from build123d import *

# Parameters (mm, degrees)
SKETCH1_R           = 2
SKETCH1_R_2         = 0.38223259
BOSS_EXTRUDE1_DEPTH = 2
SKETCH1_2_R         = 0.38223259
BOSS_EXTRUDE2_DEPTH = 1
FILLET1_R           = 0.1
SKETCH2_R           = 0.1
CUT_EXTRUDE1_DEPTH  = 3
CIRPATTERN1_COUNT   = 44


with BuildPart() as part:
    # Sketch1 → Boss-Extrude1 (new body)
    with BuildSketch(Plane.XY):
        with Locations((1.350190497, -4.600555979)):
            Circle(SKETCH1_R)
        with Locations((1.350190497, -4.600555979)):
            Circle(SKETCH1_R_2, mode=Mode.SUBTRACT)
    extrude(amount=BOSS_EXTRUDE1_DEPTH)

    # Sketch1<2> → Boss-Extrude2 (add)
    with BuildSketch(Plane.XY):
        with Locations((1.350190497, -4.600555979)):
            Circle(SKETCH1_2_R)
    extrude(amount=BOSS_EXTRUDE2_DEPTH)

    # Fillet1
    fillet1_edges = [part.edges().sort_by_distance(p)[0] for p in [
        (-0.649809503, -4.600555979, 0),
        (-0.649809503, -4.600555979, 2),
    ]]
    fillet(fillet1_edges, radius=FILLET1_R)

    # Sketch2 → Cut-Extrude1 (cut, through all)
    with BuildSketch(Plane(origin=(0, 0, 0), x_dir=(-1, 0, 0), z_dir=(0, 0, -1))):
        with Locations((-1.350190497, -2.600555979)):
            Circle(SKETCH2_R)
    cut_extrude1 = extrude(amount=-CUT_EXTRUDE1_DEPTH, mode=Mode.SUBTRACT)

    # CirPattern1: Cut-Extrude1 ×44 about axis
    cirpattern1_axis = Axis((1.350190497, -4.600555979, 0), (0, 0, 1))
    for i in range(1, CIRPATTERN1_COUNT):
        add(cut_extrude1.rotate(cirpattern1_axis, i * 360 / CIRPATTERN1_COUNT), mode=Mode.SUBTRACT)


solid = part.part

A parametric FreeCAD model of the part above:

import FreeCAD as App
import Part
import Sketcher
from FreeCAD import Vector
Q = App.Units.Quantity


def edges_at(feature, points):
    """Names of the edges that pass closest to the given points."""
    edges = feature.Shape.Edges
    near = lambda p: min(range(len(edges)), key=lambda i: edges[i].distToShape(Part.Vertex(*p))[0])
    return sorted({f"Edge{near(p) + 1}" for p in points})

doc = App.newDocument("Part")
body = doc.addObject("PartDesign::Body", "Body")

sketch1 = body.newObject("Sketcher::SketchObject", "Sketch")
sketch1.AttachmentSupport = (doc.getObject("XY_Plane"), [""])
sketch1.MapMode = "FlatFace"
sketch1.addGeometry([
    Part.Circle(Vector(1.35019, -4.600556, 0), Vector(0, 0, 1), 2),
    Part.Circle(Vector(1.35019, -4.600556, 0), Vector(0, 0, 1), 0.382233),
], False)
sketch1.addConstraint([
    Sketcher.Constraint("Coincident", 1, 3, 0, 3),
    Sketcher.Constraint("Diameter", 0, Q("4 mm")),
    Sketcher.Constraint("Diameter", 1, Q("0.764465 mm")),
    Sketcher.Constraint("DistanceX", -1, 1, 0, 3, Q("1.35019 mm")),
    Sketcher.Constraint("DistanceY", 0, 3, -1, 1, Q("4.600556 mm")),
])
pad1 = body.newObject("PartDesign::Pad", "Pad")
pad1.Profile = sketch1
pad1.Length = 2

sketch2 = body.newObject("Sketcher::SketchObject", "Sketch001")
sketch2.AttachmentSupport = (doc.getObject("XY_Plane"), [""])
sketch2.MapMode = "FlatFace"
sketch2.addGeometry(Part.Circle(Vector(1.35019, -4.600556, 0), Vector(0, 0, 1), 0.382233), False)
sketch2.addConstraint([
    Sketcher.Constraint("Diameter", 0, Q("0.764465 mm")),
    Sketcher.Constraint("DistanceX", -1, 1, 0, 3, Q("1.35019 mm")),
    Sketcher.Constraint("DistanceY", 0, 3, -1, 1, Q("4.600556 mm")),
])
pad2 = body.newObject("PartDesign::Pad", "Pad001")
pad2.Profile = sketch2
pad2.Length = 1
doc.recompute()

fillet = body.newObject("PartDesign::Fillet", "Fillet")
fillet.Base = (pad2, edges_at(pad2, [(-0.65, -4.601, 0), (-0.65, -4.601, 2)]))
fillet.Radius = 0.1

sketch3 = body.newObject("Sketcher::SketchObject", "Sketch002")
sketch3.AttachmentSupport = (doc.getObject("XY_Plane"), [""])
sketch3.MapMode = "FlatFace"
sketch3.addGeometry(Part.Circle(Vector(1.35019, -2.600556, 0), Vector(0, 0, 1), 0.1), False)
sketch3.addConstraint([
    Sketcher.Constraint("Diameter", 0, Q("0.2 mm")),
    Sketcher.Constraint("DistanceX", -1, 1, 0, 3, Q("1.35019 mm")),
    Sketcher.Constraint("DistanceY", 0, 3, -1, 1, Q("2.600556 mm")),
])
pocket1 = body.newObject("PartDesign::Pocket", "Pocket")
pocket1.Profile = sketch3
pocket1.Type = "ThroughAll"
pocket1.Reversed = True
doc.recompute()

datumline = body.newObject("PartDesign::Line", "DatumLine")
datumline.Placement = App.Placement(Vector(1.35019, -4.600556, 0), App.Rotation(Vector(0, 0, 1), Vector(0, 0, 1)))
polarpattern = body.newObject("PartDesign::PolarPattern", "PolarPattern")
polarpattern.Originals = [pocket1]
polarpattern.Axis = (datumline, [""])
polarpattern.Angle = 360
polarpattern.Occurrences = 44
body.Tip = polarpattern

doc.recompute()
